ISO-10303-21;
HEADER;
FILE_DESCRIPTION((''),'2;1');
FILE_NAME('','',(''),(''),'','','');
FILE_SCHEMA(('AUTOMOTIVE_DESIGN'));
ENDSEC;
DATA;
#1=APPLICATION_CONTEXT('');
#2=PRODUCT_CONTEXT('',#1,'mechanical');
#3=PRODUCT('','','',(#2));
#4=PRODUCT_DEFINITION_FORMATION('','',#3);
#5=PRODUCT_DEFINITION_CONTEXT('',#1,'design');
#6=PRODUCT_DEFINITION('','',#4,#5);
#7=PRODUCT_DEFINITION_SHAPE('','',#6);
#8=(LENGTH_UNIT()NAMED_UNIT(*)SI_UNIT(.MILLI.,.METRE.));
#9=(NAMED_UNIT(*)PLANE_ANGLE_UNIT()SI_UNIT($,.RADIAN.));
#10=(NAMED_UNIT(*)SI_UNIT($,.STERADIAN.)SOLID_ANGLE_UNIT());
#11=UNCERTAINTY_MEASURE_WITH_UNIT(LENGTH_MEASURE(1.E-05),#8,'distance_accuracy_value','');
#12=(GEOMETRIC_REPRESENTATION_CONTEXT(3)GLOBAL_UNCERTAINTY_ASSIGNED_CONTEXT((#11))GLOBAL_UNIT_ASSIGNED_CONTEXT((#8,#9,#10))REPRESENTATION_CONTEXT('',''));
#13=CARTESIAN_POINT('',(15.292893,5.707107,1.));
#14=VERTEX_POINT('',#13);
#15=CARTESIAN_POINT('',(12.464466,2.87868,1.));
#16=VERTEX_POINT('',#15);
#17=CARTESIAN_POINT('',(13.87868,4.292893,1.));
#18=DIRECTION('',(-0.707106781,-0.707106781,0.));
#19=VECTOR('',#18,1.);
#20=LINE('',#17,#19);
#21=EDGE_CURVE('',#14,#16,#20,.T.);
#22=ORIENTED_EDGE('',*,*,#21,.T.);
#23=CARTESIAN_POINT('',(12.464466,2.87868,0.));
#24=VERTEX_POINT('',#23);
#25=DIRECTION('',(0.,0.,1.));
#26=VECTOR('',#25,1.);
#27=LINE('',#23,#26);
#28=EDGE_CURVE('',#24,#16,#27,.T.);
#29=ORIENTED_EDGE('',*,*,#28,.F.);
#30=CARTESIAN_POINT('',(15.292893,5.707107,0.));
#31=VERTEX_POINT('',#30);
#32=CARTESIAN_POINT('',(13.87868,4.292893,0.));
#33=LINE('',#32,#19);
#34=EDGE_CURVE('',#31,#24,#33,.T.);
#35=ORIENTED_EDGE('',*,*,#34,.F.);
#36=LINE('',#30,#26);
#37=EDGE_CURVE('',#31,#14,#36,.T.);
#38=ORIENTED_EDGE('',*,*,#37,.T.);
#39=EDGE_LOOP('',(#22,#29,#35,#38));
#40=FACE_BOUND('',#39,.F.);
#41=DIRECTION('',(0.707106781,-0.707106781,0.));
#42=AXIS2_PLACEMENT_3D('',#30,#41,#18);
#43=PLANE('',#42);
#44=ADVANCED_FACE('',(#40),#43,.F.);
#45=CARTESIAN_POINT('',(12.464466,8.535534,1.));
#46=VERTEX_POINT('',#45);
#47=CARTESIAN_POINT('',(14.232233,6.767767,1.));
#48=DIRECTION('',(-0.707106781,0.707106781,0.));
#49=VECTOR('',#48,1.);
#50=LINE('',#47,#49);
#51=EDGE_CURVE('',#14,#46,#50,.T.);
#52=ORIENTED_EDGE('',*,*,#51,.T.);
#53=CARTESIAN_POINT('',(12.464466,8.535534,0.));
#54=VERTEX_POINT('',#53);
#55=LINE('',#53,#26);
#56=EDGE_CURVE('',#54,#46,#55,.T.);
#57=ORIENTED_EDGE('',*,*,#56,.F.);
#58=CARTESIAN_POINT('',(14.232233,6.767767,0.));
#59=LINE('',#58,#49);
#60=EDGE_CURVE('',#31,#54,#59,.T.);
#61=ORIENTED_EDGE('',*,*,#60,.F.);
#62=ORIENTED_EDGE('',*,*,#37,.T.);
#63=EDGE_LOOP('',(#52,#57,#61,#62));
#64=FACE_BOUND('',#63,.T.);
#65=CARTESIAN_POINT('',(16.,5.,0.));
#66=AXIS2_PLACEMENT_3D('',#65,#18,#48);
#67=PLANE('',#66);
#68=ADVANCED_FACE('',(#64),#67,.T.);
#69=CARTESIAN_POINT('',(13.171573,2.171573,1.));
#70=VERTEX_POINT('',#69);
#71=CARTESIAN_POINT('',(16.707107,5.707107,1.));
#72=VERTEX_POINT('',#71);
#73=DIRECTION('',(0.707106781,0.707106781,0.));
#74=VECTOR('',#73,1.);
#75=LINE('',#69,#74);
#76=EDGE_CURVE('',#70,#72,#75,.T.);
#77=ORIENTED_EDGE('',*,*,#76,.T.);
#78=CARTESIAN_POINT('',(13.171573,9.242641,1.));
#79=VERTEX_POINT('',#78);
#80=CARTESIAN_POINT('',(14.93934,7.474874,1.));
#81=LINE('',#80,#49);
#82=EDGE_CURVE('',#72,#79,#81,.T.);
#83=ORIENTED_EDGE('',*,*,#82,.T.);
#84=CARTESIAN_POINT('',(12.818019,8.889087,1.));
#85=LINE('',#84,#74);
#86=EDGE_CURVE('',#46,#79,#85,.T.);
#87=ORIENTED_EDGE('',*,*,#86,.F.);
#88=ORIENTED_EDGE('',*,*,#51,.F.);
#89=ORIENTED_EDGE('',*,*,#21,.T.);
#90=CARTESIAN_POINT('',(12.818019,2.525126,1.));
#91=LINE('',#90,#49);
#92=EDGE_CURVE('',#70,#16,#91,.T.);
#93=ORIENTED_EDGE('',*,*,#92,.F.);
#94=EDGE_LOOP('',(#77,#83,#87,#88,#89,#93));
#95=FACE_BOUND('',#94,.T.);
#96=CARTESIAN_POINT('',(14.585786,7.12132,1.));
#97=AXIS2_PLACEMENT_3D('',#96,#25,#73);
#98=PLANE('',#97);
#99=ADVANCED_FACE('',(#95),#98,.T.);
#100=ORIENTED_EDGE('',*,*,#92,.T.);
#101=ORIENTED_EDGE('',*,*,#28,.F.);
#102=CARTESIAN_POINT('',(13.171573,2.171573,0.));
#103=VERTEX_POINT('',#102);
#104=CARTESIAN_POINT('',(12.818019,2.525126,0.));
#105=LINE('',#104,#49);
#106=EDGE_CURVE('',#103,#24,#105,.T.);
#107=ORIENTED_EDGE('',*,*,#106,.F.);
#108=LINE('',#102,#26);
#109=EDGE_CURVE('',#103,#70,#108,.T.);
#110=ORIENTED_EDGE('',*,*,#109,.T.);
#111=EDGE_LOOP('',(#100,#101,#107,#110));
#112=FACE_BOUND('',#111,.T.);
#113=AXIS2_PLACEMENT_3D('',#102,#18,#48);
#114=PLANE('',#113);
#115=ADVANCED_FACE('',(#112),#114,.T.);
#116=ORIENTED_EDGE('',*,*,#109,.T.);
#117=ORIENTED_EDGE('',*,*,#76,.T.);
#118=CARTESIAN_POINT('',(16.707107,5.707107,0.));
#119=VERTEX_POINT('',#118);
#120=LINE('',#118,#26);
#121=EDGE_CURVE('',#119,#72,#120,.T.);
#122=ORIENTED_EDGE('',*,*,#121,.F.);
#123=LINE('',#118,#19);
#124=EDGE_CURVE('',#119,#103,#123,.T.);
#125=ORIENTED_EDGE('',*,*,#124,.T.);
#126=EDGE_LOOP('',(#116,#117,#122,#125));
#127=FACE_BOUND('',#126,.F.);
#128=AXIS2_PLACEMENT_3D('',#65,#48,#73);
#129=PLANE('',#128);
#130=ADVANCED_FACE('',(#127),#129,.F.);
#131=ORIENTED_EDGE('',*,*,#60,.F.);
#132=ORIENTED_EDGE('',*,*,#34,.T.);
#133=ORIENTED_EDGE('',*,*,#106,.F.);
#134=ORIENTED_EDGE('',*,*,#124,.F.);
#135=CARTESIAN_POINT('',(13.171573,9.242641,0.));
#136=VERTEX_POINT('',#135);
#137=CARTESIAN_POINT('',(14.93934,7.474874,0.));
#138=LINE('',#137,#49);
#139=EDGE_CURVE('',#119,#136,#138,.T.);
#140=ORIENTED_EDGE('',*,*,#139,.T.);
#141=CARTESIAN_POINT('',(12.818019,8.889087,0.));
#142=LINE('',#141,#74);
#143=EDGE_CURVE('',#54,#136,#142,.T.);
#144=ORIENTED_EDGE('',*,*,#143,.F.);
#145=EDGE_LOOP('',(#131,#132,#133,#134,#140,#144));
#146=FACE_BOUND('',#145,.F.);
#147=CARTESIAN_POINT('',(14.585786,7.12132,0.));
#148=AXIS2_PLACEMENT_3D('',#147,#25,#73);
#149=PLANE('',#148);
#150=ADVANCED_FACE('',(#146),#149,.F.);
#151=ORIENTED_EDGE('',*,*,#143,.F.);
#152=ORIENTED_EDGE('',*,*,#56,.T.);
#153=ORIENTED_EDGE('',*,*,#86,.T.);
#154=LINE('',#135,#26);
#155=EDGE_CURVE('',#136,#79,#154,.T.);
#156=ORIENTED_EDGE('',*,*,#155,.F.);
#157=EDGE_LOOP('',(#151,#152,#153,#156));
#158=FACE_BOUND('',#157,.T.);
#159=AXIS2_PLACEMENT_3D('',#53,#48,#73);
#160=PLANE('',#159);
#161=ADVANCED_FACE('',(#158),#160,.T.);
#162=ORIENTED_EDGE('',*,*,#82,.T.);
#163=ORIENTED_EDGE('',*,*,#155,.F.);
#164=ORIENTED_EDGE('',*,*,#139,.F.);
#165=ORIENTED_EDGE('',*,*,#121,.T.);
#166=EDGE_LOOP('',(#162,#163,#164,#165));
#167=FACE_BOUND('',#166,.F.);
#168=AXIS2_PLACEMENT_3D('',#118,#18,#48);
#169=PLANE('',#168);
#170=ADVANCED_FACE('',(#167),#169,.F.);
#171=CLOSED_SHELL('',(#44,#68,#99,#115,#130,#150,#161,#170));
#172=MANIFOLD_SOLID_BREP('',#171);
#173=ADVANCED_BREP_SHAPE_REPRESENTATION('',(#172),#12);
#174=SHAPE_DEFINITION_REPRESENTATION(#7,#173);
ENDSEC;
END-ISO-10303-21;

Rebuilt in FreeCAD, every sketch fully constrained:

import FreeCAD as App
import Part
import Sketcher
Q = App.Units.Quantity

doc = App.newDocument("Part")
body = doc.addObject("PartDesign::Body", "Body")

sketch1 = doc.addObject("Sketcher::SketchObject", "Sketch")
body.addObject(sketch1)
sketch1.AttachmentSupport = (doc.XY_Plane, [""])
sketch1.MapMode = "FlatFace"
sketch1.addGeometry(Part.LineSegment(App.Vector(0, 5, 0), App.Vector(0, 0, 0)), False)
sketch1.addGeometry(Part.LineSegment(App.Vector(0, 0, 0), App.Vector(1, 0, 0)), False)
sketch1.addGeometry(Part.LineSegment(App.Vector(1, 0, 0), App.Vector(1, 5, 0)), False)
sketch1.addGeometry(Part.LineSegment(App.Vector(1, 5, 0), App.Vector(0, 5, 0)), False)
sketch1.addConstraint(Sketcher.Constraint("Coincident", 0, 2, 1, 1))
sketch1.addConstraint(Sketcher.Constraint("Coincident", 1, 2, 2, 1))
sketch1.addConstraint(Sketcher.Constraint("Coincident", 2, 2, 3, 1))
sketch1.addConstraint(Sketcher.Constraint("Coincident", 3, 2, 0, 1))
sketch1.addConstraint(Sketcher.Constraint("Vertical", 0))
sketch1.addConstraint(Sketcher.Constraint("Horizontal", 1))
sketch1.addConstraint(Sketcher.Constraint("Vertical", 2))
sketch1.addConstraint(Sketcher.Constraint("Horizontal", 3))
sketch1.addConstraint(Sketcher.Constraint("Coincident", 0, 2, -1, 1))
sketch1.addConstraint(Sketcher.Constraint("DistanceX", 1, 1, 1, 2, Q("1 mm")))
sketch1.addConstraint(Sketcher.Constraint("DistanceY", 0, 2, 0, 1, Q("5 mm")))
pad1 = doc.addObject("PartDesign::Pad", "Pad")
body.addObject(pad1)
pad1.Profile = sketch1
pad1.Length = 1
body2 = doc.addObject("PartDesign::Body", "Body001")
doc.recompute()

body.Placement = App.Placement(App.Vector(0, 0, 0), App.Rotation(App.Vector(0, 0, 1), 45))
boolean = doc.addObject("PartDesign::Boolean", "Boolean")
body2.addObject(boolean)
boolean.Type = "Fuse"
boolean.addObjects([body])
body3 = doc.addObject("PartDesign::Body", "Body002")

sketch2 = doc.addObject("Sketcher::SketchObject", "Sketch001")
body3.addObject(sketch2)
sketch2.AttachmentSupport = (doc.getObject("XY_Plane002"), [""])
sketch2.MapMode = "FlatFace"
sketch2.addGeometry(Part.LineSegment(App.Vector(0, 4, 0), App.Vector(0, 0, 0)), False)
sketch2.addGeometry(Part.LineSegment(App.Vector(0, 0, 0), App.Vector(1, 0, 0)), False)
sketch2.addGeometry(Part.LineSegment(App.Vector(1, 0, 0), App.Vector(1, 4, 0)), False)
sketch2.addGeometry(Part.LineSegment(App.Vector(1, 4, 0), App.Vector(0, 4, 0)), False)
sketch2.addConstraint(Sketcher.Constraint("Coincident", 0, 2, 1, 1))
sketch2.addConstraint(Sketcher.Constraint("Coincident", 1, 2, 2, 1))
sketch2.addConstraint(Sketcher.Constraint("Coincident", 2, 2, 3, 1))
sketch2.addConstraint(Sketcher.Constraint("Coincident", 3, 2, 0, 1))
sketch2.addConstraint(Sketcher.Constraint("Vertical", 0))
sketch2.addConstraint(Sketcher.Constraint("Horizontal", 1))
sketch2.addConstraint(Sketcher.Constraint("Vertical", 2))
sketch2.addConstraint(Sketcher.Constraint("Horizontal", 3))
sketch2.addConstraint(Sketcher.Constraint("Coincident", 0, 2, -1, 1))
sketch2.addConstraint(Sketcher.Constraint("DistanceX", 1, 1, 1, 2, Q("1 mm")))
sketch2.addConstraint(Sketcher.Constraint("DistanceY", 0, 2, 0, 1, Q("4 mm")))
pad2 = doc.addObject("PartDesign::Pad", "Pad001")
body3.addObject(pad2)
pad2.Profile = sketch2
pad2.Length = 1
body4 = doc.addObject("PartDesign::Body", "Body003")
doc.recompute()

body3.Placement = App.Placement(App.Vector(0, 0, 0), App.Rotation(App.Vector(0, 0, 1), 135))
boolean2 = doc.addObject("PartDesign::Boolean", "Boolean001")
body4.addObject(boolean2)
boolean2.Type = "Fuse"
boolean2.addObjects([body3])
doc.recompute()

boolean3 = doc.addObject("PartDesign::Boolean", "Boolean002")
body4.addObject(boolean3)
boolean3.Type = "Fuse"
boolean3.addObjects([body2])
body5 = doc.addObject("PartDesign::Body", "Body004")
doc.recompute()

body4.Placement = App.Placement(App.Vector(16, 5, 0), App.Rotation(App.Vector(0, 0, 1), 0))
boolean4 = doc.addObject("PartDesign::Boolean", "Boolean003")
body5.addObject(boolean4)
boolean4.Type = "Fuse"
boolean4.addObjects([body4])

doc.recompute()
